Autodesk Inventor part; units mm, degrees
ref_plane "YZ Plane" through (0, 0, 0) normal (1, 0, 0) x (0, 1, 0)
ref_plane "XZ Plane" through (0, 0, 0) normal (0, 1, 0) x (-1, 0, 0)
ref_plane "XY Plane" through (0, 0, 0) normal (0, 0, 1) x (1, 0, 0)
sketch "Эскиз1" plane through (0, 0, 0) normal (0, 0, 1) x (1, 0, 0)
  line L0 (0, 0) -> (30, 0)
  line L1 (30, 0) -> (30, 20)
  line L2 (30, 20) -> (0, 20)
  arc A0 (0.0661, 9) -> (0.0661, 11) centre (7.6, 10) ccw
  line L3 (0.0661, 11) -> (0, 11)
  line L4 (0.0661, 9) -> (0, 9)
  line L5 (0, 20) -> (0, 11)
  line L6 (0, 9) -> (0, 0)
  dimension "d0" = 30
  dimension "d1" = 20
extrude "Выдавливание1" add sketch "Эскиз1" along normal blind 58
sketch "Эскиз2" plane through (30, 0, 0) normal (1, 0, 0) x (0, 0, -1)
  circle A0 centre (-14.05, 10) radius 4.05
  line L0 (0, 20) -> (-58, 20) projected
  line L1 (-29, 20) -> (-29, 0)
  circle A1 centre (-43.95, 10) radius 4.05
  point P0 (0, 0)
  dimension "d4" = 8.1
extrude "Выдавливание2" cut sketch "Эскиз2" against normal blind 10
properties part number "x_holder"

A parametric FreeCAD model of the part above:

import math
import FreeCAD as App
import Part
import Sketcher

V = App.Vector
Q = App.Units.Quantity

doc = App.newDocument("Part")
body = doc.addObject("PartDesign::Body", "Body")

sketch1 = doc.addObject("Sketcher::SketchObject", "Sketch")
body.addObject(sketch1)
sketch1.AttachmentSupport = (doc.XY_Plane, [""])
sketch1.MapMode = "FlatFace"
sketch1.addGeometry([
    Part.LineSegment(V(0, 9, 0), V(0, 0, 0)),
    Part.LineSegment(V(0, 0, 0), V(30, 0, 0)),
    Part.LineSegment(V(30, 0, 0), V(30, 20, 0)),
    Part.LineSegment(V(30, 20, 0), V(0, 20, 0)),
    Part.LineSegment(V(0, 20, 0), V(0, 11, 0)),
    Part.LineSegment(V(0, 11, 0), V(0.07, 11, 0)),
    Part.ArcOfCircle(Part.Circle(V(7.6, 10, 0), V(0, 0, 1), 7.6), math.radians(-172), math.radians(172)),
    Part.LineSegment(V(0.07, 9, 0), V(0, 9, 0)),
], False)
sketch1.addConstraint([
    Sketcher.Constraint("Coincident", 0, 2, 1, 1),
    Sketcher.Constraint("Coincident", 1, 2, 2, 1),
    Sketcher.Constraint("Coincident", 2, 2, 3, 1),
    Sketcher.Constraint("Coincident", 3, 2, 4, 1),
    Sketcher.Constraint("Coincident", 4, 2, 5, 1),
    Sketcher.Constraint("Coincident", 5, 2, 6, 2),
    Sketcher.Constraint("Coincident", 6, 1, 7, 1),
    Sketcher.Constraint("Coincident", 7, 2, 0, 1),
    Sketcher.Constraint("Vertical", 0),
    Sketcher.Constraint("Horizontal", 1),
    Sketcher.Constraint("Vertical", 2),
    Sketcher.Constraint("Horizontal", 3),
    Sketcher.Constraint("Vertical", 4),
    Sketcher.Constraint("Horizontal", 5),
    Sketcher.Constraint("Horizontal", 7),
    Sketcher.Constraint("Coincident", 0, 2, -1, 1),
    Sketcher.Constraint("PointOnObject", 3, 2, -2),
    Sketcher.Constraint("Vertical", 5, 2, 6, 1),
    Sketcher.Constraint("Equal", 0, 4),
    Sketcher.Constraint("DistanceX", 1, 1, 1, 2, Q("30 mm")),
    Sketcher.Constraint("DistanceY", 2, 1, 2, 2, Q("20 mm")),
    Sketcher.Constraint("Radius", 6, Q("7.6 mm")),
    Sketcher.Constraint("DistanceY", 0, 2, 0, 1, Q("9 mm")),
    Sketcher.Constraint("DistanceX", -1, 1, 6, 3, Q("7.6 mm")),
])
pad1 = doc.addObject("PartDesign::Pad", "Pad")
body.addObject(pad1)
pad1.Profile = sketch1
pad1.Length = 58

sketch2 = doc.addObject("Sketcher::SketchObject", "Sketch001")
body.addObject(sketch2)
sketch2.AttachmentSupport = (doc.YZ_Plane, [""])
sketch2.MapMode = "FlatFace"
sketch2.AttachmentOffset = App.Placement(V(0, 0, 30), App.Rotation())
sketch2.addGeometry([
    Part.Circle(V(10, 14.1, 0), V(0, 0, 1), 4),
    Part.Circle(V(10, 44, 0), V(0, 0, 1), 4),
], False)
sketch2.addConstraint([
    Sketcher.Constraint("Equal", 0, 1),
    Sketcher.Constraint("Vertical", 0, 3, 1, 3),
    Sketcher.Constraint("Diameter", 0, Q("8.1 mm")),
    Sketcher.Constraint("DistanceX", -1, 1, 0, 3, Q("10 mm")),
    Sketcher.Constraint("DistanceY", 0, 3, 1, 3, Q("29.9 mm")),
    Sketcher.Constraint("DistanceY", -1, 1, 0, 3, Q("14.05 mm")),
])
pocket1 = doc.addObject("PartDesign::Pocket", "Pocket")
body.addObject(pocket1)
pocket1.Profile = sketch2
pocket1.Length = 10

doc.recompute()
